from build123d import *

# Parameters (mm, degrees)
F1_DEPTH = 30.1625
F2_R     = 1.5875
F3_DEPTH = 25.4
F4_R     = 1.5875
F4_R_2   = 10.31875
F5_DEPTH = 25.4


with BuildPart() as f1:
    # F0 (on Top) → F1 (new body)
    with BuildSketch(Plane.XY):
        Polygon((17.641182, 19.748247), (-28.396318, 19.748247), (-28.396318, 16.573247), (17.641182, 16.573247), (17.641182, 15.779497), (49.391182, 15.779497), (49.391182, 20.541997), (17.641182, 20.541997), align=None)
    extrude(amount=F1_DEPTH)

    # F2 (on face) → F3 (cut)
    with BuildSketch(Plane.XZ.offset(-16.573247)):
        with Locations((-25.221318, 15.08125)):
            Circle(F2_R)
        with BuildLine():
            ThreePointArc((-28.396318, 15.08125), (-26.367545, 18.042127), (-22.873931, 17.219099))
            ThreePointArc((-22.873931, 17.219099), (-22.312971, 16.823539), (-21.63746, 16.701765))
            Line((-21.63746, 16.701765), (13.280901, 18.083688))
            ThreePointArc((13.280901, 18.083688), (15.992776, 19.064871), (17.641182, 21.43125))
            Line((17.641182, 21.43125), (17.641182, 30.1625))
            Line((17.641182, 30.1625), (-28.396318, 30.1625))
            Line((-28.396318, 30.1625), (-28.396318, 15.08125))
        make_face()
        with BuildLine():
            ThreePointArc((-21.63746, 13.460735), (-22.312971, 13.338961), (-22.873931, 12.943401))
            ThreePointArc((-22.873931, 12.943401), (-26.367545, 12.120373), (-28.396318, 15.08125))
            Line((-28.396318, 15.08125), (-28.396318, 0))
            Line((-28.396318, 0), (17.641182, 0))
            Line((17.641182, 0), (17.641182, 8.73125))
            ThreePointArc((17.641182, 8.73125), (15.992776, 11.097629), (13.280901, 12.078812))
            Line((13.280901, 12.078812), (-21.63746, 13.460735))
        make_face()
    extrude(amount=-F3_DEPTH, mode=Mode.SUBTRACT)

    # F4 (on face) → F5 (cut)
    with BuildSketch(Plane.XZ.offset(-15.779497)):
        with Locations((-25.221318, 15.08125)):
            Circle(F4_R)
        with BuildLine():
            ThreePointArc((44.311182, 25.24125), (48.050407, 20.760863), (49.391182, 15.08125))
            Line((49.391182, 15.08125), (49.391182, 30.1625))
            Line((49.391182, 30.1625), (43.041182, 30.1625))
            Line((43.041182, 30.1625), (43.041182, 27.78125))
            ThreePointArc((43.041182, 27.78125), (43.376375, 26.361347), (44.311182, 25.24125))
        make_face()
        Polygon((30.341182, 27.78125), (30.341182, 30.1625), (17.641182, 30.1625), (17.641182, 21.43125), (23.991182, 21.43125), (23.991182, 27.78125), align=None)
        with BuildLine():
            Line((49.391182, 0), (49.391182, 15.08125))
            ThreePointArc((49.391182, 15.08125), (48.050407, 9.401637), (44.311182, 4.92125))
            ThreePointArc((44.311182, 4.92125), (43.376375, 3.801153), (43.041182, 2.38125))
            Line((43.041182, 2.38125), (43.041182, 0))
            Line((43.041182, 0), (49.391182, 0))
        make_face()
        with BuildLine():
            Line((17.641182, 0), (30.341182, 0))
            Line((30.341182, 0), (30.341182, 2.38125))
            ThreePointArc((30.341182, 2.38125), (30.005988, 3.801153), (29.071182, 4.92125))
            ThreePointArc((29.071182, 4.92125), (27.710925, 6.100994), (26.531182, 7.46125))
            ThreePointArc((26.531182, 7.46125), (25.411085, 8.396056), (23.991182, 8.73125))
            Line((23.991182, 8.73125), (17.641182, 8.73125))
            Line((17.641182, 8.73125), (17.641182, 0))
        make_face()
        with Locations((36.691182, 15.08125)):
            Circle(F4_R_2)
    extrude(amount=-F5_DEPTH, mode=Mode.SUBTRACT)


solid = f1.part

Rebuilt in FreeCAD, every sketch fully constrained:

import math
import FreeCAD as App
import Part
import Sketcher
from FreeCAD import Vector
Q = App.Units.Quantity


def add_polygon(sketch, points):
    """Adds a closed chain of lines whose ends are joined by coincident constraints."""
    first, n = sketch.GeometryCount, len(points)
    for a, b in zip(points, points[1:] + points[:1]):
        sketch.addGeometry(Part.LineSegment(App.Vector(*a, 0), App.Vector(*b, 0)), False)
    for i in range(n):
        sketch.addConstraint(Sketcher.Constraint("Coincident", first + i, 2, first + (i + 1) % n, 1))

doc = App.newDocument("Part")
body = doc.addObject("PartDesign::Body", "Body")

sketch1 = body.newObject("Sketcher::SketchObject", "Sketch")
sketch1.AttachmentSupport = (doc.getObject("XY_Plane"), [""])
sketch1.MapMode = "FlatFace"
add_polygon(sketch1, [(17.6, 19.7), (-28.4, 19.7), (-28.4, 16.6), (17.6, 16.6), (17.6, 15.8), (49.4, 15.8), (49.4, 20.5), (17.6, 20.5)])
sketch1.addConstraint([
    Sketcher.Constraint("Horizontal", 0),
    Sketcher.Constraint("Vertical", 1),
    Sketcher.Constraint("Horizontal", 2),
    Sketcher.Constraint("Vertical", 3),
    Sketcher.Constraint("Horizontal", 4),
    Sketcher.Constraint("Vertical", 5),
    Sketcher.Constraint("Horizontal", 6),
    Sketcher.Constraint("Vertical", 7),
    Sketcher.Constraint("Vertical", 3, 2, 6, 2),
    Sketcher.Constraint("Equal", 3, 7),
    Sketcher.Constraint("DistanceX", 4, 1, 4, 2, Q("1.25 in")),
    Sketcher.Constraint("DistanceX", 0, 2, 0, 1, Q("1.8125 in")),
    Sketcher.Constraint("DistanceY", 1, 2, 1, 1, Q("0.125 in")),
    Sketcher.Constraint("DistanceY", 3, 2, 3, 1, Q("0.03125 in")),
    Sketcher.Constraint("DistanceX", 0, 2, -1, 1, Q("28.396318 mm")),
    Sketcher.Constraint("DistanceY", -1, 1, 0, 2, Q("19.748247 mm")),
])
pad1 = body.newObject("PartDesign::Pad", "Pad")
pad1.Profile = sketch1
pad1.Length = Q("1.1875 in")

sketch2 = body.newObject("Sketcher::SketchObject", "Sketch001")
sketch2.AttachmentSupport = (doc.getObject("XZ_Plane"), [""])
sketch2.MapMode = "FlatFace"
sketch2.AttachmentOffset = App.Placement(Vector(0, 0, -16.573247), App.Rotation())
sketch2.addGeometry([
    Part.Circle(Vector(-25.2, 15.1, 0), Vector(0, 0, 1), 1.6),
    Part.ArcOfCircle(Part.Circle(Vector(-25.2, 15.1, 0), Vector(0, 0, 1), 3.2), math.radians(42), math.radians(180)),
    Part.ArcOfCircle(Part.Circle(Vector(-21.7, 18.3, 0), Vector(0, 0, 1), 1.6), math.radians(-138), math.radians(-88)),
    Part.LineSegment(Vector(-21.6, 16.7, 0), Vector(13.3, 18.1, 0)),
    Part.ArcOfCircle(Part.Circle(Vector(13.1, 22.8, 0), Vector(0, 0, 1), 4.8), math.radians(-88), math.radians(-17)),
    Part.LineSegment(Vector(17.6, 21.4, 0), Vector(17.6, 30.2, 0)),
    Part.LineSegment(Vector(17.6, 30.2, 0), Vector(-28.4, 30.2, 0)),
    Part.LineSegment(Vector(-28.4, 30.2, 0), Vector(-28.4, 15.1, 0)),
    Part.ArcOfCircle(Part.Circle(Vector(-21.7, 11.9, 0), Vector(0, 0, 1), 1.6), math.radians(88), math.radians(138)),
    Part.ArcOfCircle(Part.Circle(Vector(-25.2, 15.1, 0), Vector(0, 0, 1), 3.2), math.radians(180), math.radians(318)),
    Part.LineSegment(Vector(-28.4, 15.1, 0), Vector(-28.4, 0, 0)),
    Part.LineSegment(Vector(-28.4, 0, 0), Vector(17.6, 0, 0)),
    Part.LineSegment(Vector(17.6, 0, 0), Vector(17.6, 8.7, 0)),
    Part.ArcOfCircle(Part.Circle(Vector(13.1, 7.3, 0), Vector(0, 0, 1), 4.8), math.radians(17), math.radians(88)),
    Part.LineSegment(Vector(13.3, 12.1, 0), Vector(-21.6, 13.5, 0)),
], False)
sketch2.addConstraint([
    Sketcher.Constraint("Tangent", 1, 1, 2, 1),
    Sketcher.Constraint("Tangent", 2, 2, 3, 1),
    Sketcher.Constraint("Tangent", 3, 2, 4, 1),
    Sketcher.Constraint("Coincident", 4, 2, 5, 1),
    Sketcher.Constraint("Coincident", 5, 2, 6, 1),
    Sketcher.Constraint("Coincident", 6, 2, 7, 1),
    Sketcher.Constraint("Tangent", 7, 2, 1, 2),
    Sketcher.Constraint("Tangent", 8, 2, 9, 2),
    Sketcher.Constraint("Tangent", 9, 1, 10, 1),
    Sketcher.Constraint("Coincident", 10, 2, 11, 1),
    Sketcher.Constraint("Coincident", 11, 2, 12, 1),
    Sketcher.Constraint("Coincident", 12, 2, 13, 1),
    Sketcher.Constraint("Tangent", 13, 2, 14, 1),
    Sketcher.Constraint("Tangent", 14, 2, 8, 1),
    Sketcher.Constraint("Vertical", 5),
    Sketcher.Constraint("Horizontal", 6),
    Sketcher.Constraint("Vertical", 7),
    Sketcher.Constraint("Vertical", 10),
    Sketcher.Constraint("Horizontal", 11),
    Sketcher.Constraint("Vertical", 12),
    Sketcher.Constraint("Coincident", 1, 3, 0, 3),
    Sketcher.Constraint("Coincident", 9, 3, 0, 3),
    Sketcher.Constraint("Equal", 0, 2),
    Sketcher.Constraint("Equal", 2, 8),
    Sketcher.Constraint("Equal", 1, 9),
    Sketcher.Constraint("Equal", 4, 13),
    Sketcher.Constraint("PointOnObject", 10, 2, -1),
    Sketcher.Constraint("Vertical", 2, 3, 8, 3),
    Sketcher.Constraint("Vertical", 4, 3, 13, 3),
    Sketcher.Constraint("Vertical", 5, 2, 11, 2),
    Sketcher.Constraint("Vertical", 3, 2, 13, 2),
    Sketcher.Constraint("Equal", 7, 10),
    Sketcher.Constraint("Diameter", 0, Q("0.125 in")),
    Sketcher.Constraint("Radius", 1, Q("0.125 in")),
    Sketcher.Constraint("Radius", 4, Q("0.1875001 in")),
    Sketcher.Constraint("DistanceY", 12, 2, 4, 2, Q("0.5 in")),
    Sketcher.Constraint("DistanceX", 6, 2, 6, 1, Q("1.8125 in")),
    Sketcher.Constraint("DistanceY", 5, 1, 5, 2, Q("0.34375 in")),
    Sketcher.Constraint("DistanceY", 0, 3, 2, 2, Q("0.0637998 in")),
    Sketcher.Constraint("DistanceX", -1, 1, 3, 2, Q("13.280901 mm")),
    Sketcher.Constraint("DistanceX", 0, 3, -1, 1, Q("25.221318 mm")),
])
pocket1 = body.newObject("PartDesign::Pocket", "Pocket")
pocket1.Profile = sketch2
pocket1.Length = Q("1 in")

sketch3 = body.newObject("Sketcher::SketchObject", "Sketch002")
sketch3.AttachmentSupport = (doc.getObject("XZ_Plane"), [""])
sketch3.MapMode = "FlatFace"
sketch3.AttachmentOffset = App.Placement(Vector(0, 0, -15.779497), App.Rotation())
sketch3.addGeometry(Part.Circle(Vector(-25.221318, 15.08125, 0), Vector(0, 0, 1), 1.5875), False)
sketch3.addGeometry(Part.ArcOfCircle(Part.Circle(Vector(36.691181, 15.081249, 0), Vector(0, 0, 1), 12.700001), math.radians(0.000003), math.radians(53.1301)), False)
sketch3.addGeometry(Part.LineSegment(Vector(49.391182, 15.08125, 0), Vector(49.391182, 30.1625, 0)), False)
sketch3.addGeometry(Part.LineSegment(Vector(49.391182, 30.1625, 0), Vector(43.041182, 30.1625, 0)), False)
sketch3.addGeometry(Part.LineSegment(Vector(43.041182, 30.1625, 0), Vector(43.041182, 27.78125, 0)), False)
sketch3.addGeometry(Part.ArcOfCircle(Part.Circle(Vector(46.216178, 27.781248, 0), Vector(0, 0, 1), 3.174996), math.radians(179.99996), math.radians(233.130142)), False)
add_polygon(sketch3, [(30.341182, 27.78125), (30.341182, 30.1625), (17.641182, 30.1625), (17.641182, 21.43125), (23.991182, 21.43125), (23.991182, 27.78125)])
sketch3.addGeometry(Part.LineSegment(Vector(49.391182, 0, 0), Vector(49.391182, 15.08125, 0)), False)
sketch3.addGeometry(Part.ArcOfCircle(Part.Circle(Vector(36.691181, 15.081251, 0), Vector(0, 0, 1), 12.700001), math.radians(-53.1301), math.radians(-0.000003)), False)
sketch3.addGeometry(Part.ArcOfCircle(Part.Circle(Vector(46.216178, 2.381252, 0), Vector(0, 0, 1), 3.174996), math.radians(126.869858), math.radians(180.00004)), False)
sketch3.addGeometry(Part.LineSegment(Vector(43.041182, 2.38125, 0), Vector(43.041182, 0, 0)), False)
sketch3.addGeometry(Part.LineSegment(Vector(43.041182, 0, 0), Vector(49.391182, 0, 0)), False)
sketch3.addGeometry(Part.LineSegment(Vector(17.641182, 0, 0), Vector(30.341182, 0, 0)), False)
sketch3.addGeometry(Part.LineSegment(Vector(30.341182, 0, 0), Vector(30.341182, 2.38125, 0)), False)
sketch3.addGeometry(Part.ArcOfCircle(Part.Circle(Vector(27.166179, 2.381248, 0), Vector(0, 0, 1), 3.175003), math.radians(0.000028), math.radians(53.130074)), False)
sketch3.addGeometry(Part.ArcOfCircle(Part.Circle(Vector(36.691144, 15.081212, 0), Vector(0, 0, 1), 12.699947), math.radians(-143.130136), math.radians(-126.869864)), False)
sketch3.addGeometry(Part.ArcOfCircle(Part.Circle(Vector(23.99118, 5.556247, 0), Vector(0, 0, 1), 3.175003), math.radians(36.869926), math.radians(89.999972)), False)
sketch3.addGeometry(Part.LineSegment(Vector(23.991182, 8.73125, 0), Vector(17.641182, 8.73125, 0)), False)
sketch3.addGeometry(Part.LineSegment(Vector(17.641182, 8.73125, 0), Vector(17.641182, 0, 0)), False)
sketch3.addGeometry(Part.Circle(Vector(36.691182, 15.08125, 0), Vector(0, 0, 1), 10.31875), False)
sketch3.addConstraint([
    Sketcher.Constraint("Coincident", 1, 1, 2, 1),
    Sketcher.Constraint("Coincident", 2, 2, 3, 1),
    Sketcher.Constraint("Coincident", 3, 2, 4, 1),
    Sketcher.Constraint("Coincident", 4, 2, 5, 1),
    Sketcher.Constraint("Coincident", 5, 2, 1, 2),
    Sketcher.Constraint("Coincident", 12, 2, 13, 2),
    Sketcher.Constraint("Coincident", 13, 1, 14, 1),
    Sketcher.Constraint("Coincident", 14, 2, 15, 1),
    Sketcher.Constraint("Coincident", 15, 2, 16, 1),
    Sketcher.Constraint("Coincident", 16, 2, 12, 1),
    Sketcher.Constraint("Coincident", 17, 2, 18, 1),
    Sketcher.Constraint("Coincident", 18, 2, 19, 1),
    Sketcher.Constraint("Coincident", 19, 2, 20, 2),
    Sketcher.Constraint("Coincident", 20, 1, 21, 1),
    Sketcher.Constraint("Coincident", 21, 2, 22, 1),
    Sketcher.Constraint("Coincident", 22, 2, 23, 1),
    Sketcher.Constraint("Coincident", 23, 2, 17, 1),
    Sketcher.Constraint("Vertical", 2),
    Sketcher.Constraint("Horizontal", 3),
    Sketcher.Constraint("Vertical", 4),
    Sketcher.Constraint("Vertical", 6),
    Sketcher.Constraint("Horizontal", 7),
    Sketcher.Constraint("Vertical", 8),
    Sketcher.Constraint("Horizontal", 9),
    Sketcher.Constraint("Vertical", 10),
    Sketcher.Constraint("Horizontal", 11),
    Sketcher.Constraint("Vertical", 12),
    Sketcher.Constraint("Vertical", 15),
    Sketcher.Constraint("Horizontal", 16),
    Sketcher.Constraint("Horizontal", 17),
    Sketcher.Constraint("Vertical", 18),
    Sketcher.Constraint("Horizontal", 22),
    Sketcher.Constraint("Vertical", 23),
    Sketcher.Constraint("Coincident", 13, 3, 1, 3),
    Sketcher.Constraint("Coincident", 24, 3, 1, 3),
    Sketcher.Constraint("Coincident", 12, 2, 1, 1),
    Sketcher.Constraint("PointOnObject", 15, 2, -1),
    Sketcher.Constraint("PointOnObject", 17, 2, -1),
    Sketcher.Constraint("Radius", 1, Q("0.5 in")),
    Sketcher.Constraint("Diameter", 0, Q("0.125 in")),
    Sketcher.Constraint("Diameter", 24, Q("0.8125 in")),
    Sketcher.Constraint("DistanceX", 7, 2, 7, 1, Q("0.5 in")),
    Sketcher.Constraint("DistanceX", 17, 1, 17, 2, Q("0.5 in")),
    Sketcher.Constraint("Radius", 5, Q("0.1249998 in")),
    Sketcher.Constraint("Radius", 14, Q("0.1249998 in")),
    Sketcher.Constraint("Radius", 19, Q("0.1250001 in")),
    Sketcher.Constraint("Radius", 21, Q("0.1250001 in")),
    Sketcher.Constraint("DistanceY", 14, 3, 5, 3, Q("0.9999998 in")),
    Sketcher.Constraint("DistanceY", 19, 3, 5, 3, Q("1 in")),
    Sketcher.Constraint("DistanceX", 3, 2, 3, 1, Q("0.25 in")),
    Sketcher.Constraint("DistanceX", 9, 1, 9, 2, Q("0.25 in")),
    Sketcher.Constraint("DistanceX", 22, 2, 22, 1, Q("0.25 in")),
    Sketcher.Constraint("DistanceY", 10, 1, 10, 2, Q("0.25 in")),
    Sketcher.Constraint("DistanceY", 0, 3, 5, 3, Q("0.4999999 in")),
    Sketcher.Constraint("DistanceX", 21, 3, 1, 3, Q("0.5 in")),
    Sketcher.Constraint("DistanceY", 1, 1, 5, 3, Q("0.4999999 in")),
    Sketcher.Constraint("DistanceY", 1, 1, 4, 2, Q("0.5 in")),
    Sketcher.Constraint("DistanceY", 5, 2, 4, 2, Q("0.1 in")),
    Sketcher.Constraint("DistanceX", 6, 2, 3, 2, Q("0.5 in")),
    Sketcher.Constraint("DistanceY", 13, 3, 10, 2, Q("0.5 in")),
    Sketcher.Constraint("DistanceY", 14, 3, 13, 1, Q("0.0999999 in")),
    Sketcher.Constraint("DistanceY", 14, 2, 13, 1, Q("0.1 in")),
    Sketcher.Constraint("DistanceX", 17, 2, 15, 2, Q("0.5 in")),
    Sketcher.Constraint("DistanceY", 18, 2, 19, 2, Q("0.1 in")),
    Sketcher.Constraint("DistanceY", 19, 3, 19, 2, Q("0.1000001 in")),
    Sketcher.Constraint("DistanceX", 21, 3, 20, 1, Q("0.1000001 in")),
    Sketcher.Constraint("DistanceY", 19, 2, 20, 1, Q("0.1 in")),
    Sketcher.Constraint("DistanceY", 2, 1, 2, 2, Q("0.59375 in")),
    Sketcher.Constraint("DistanceY", 6, 1, 6, 2, Q("0.09375 in")),
    Sketcher.Constraint("DistanceY", 12, 1, 12, 2, Q("0.59375 in")),
    Sketcher.Constraint("DistanceX", 0, 3, 1, 3, Q("2.4375 in")),
    Sketcher.Constraint("Radius", 20, Q("12.699947 mm")),
    Sketcher.Constraint("DistanceX", 0, 3, -1, 1, Q("25.221318 mm")),
])
pocket2 = body.newObject("PartDesign::Pocket", "Pocket001")
pocket2.Profile = sketch3
pocket2.Length = Q("1 in")

doc.recompute()
